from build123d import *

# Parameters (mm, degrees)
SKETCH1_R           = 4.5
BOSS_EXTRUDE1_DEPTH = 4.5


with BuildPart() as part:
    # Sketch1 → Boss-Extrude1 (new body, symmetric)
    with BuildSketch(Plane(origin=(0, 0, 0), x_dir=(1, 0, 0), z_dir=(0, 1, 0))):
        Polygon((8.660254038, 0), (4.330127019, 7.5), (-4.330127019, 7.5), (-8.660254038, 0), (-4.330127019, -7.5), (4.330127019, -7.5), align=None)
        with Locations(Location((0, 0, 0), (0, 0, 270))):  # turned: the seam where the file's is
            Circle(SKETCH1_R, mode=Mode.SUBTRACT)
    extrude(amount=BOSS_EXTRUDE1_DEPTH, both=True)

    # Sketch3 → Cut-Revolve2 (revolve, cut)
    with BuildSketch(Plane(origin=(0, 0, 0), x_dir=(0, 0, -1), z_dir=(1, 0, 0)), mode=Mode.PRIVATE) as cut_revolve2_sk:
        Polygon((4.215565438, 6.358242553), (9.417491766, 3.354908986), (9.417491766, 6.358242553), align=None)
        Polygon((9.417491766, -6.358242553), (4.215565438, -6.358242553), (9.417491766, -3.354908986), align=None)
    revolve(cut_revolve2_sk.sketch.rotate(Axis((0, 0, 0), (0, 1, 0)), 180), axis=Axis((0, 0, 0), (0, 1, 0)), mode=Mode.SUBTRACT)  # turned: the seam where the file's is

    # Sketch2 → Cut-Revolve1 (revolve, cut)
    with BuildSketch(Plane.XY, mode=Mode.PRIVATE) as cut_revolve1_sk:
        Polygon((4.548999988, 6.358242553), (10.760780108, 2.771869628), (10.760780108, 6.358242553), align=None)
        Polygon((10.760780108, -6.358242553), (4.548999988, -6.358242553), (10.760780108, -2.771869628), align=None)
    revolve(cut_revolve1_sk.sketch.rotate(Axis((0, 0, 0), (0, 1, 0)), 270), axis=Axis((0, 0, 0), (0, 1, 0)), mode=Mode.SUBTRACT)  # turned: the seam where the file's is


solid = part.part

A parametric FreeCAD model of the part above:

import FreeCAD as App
import Part
import Sketcher
from FreeCAD import Vector
Q = App.Units.Quantity


def add_polygon(sketch, points):
    """Adds a closed chain of lines whose ends are joined by coincident constraints."""
    first, n = sketch.GeometryCount, len(points)
    for a, b in zip(points, points[1:] + points[:1]):
        sketch.addGeometry(Part.LineSegment(App.Vector(*a, 0), App.Vector(*b, 0)), False)
    for i in range(n):
        sketch.addConstraint(Sketcher.Constraint("Coincident", first + i, 2, first + (i + 1) % n, 1))

doc = App.newDocument("Part")
params = doc.addObject("Spreadsheet::Sheet", "Params")
for row, (alias, value) in enumerate([
    ("sketch1_diameter", "9 mm"),
    ("pad1_length", "9 mm"),
    ("groove_angle", "360 deg"),
    ("groove2_angle", "360 deg"),
], start=1):
    params.set(f"A{row}", alias)
    params.set(f"B{row}", "=" + value)
    params.setAlias(f"B{row}", alias)

body = doc.addObject("PartDesign::Body", "Body")

# Sketch on XZ plane
sketch1 = body.newObject("Sketcher::SketchObject", "Sketch")
sketch1.AttachmentSupport = (doc.getObject("XZ_Plane"), [""])
sketch1.MapMode = "FlatFace"
add_polygon(sketch1, [(8.7, 0), (4.3, -7.5), (-4.3, -7.5), (-8.7, 0), (-4.3, 7.5), (4.3, 7.5)])  # lines 0-5
sketch1.addGeometry(Part.Circle(Vector(0, 0, 0), Vector(0, 0, 1), 4.5), False)  # 6
sketch1.addConstraint([
    Sketcher.Constraint("Horizontal", 1),
    Sketcher.Constraint("Horizontal", 4),
    Sketcher.Constraint("Coincident", 6, 3, -1, 1),
    Sketcher.Constraint("Symmetric", 0, 2, 3, 2, -1, 1),
    Sketcher.Constraint("Symmetric", 2, 2, 5, 2, -1, 1),
    Sketcher.Constraint("PointOnObject", 2, 2, -1),
    Sketcher.Constraint("Parallel", 2, 5),
    Sketcher.Constraint("Vertical", 1, 2, 3, 2),
    Sketcher.Constraint("Diameter", 6, 9.0),
    Sketcher.Constraint("Angle", 0, Q("-120 deg")),
    Sketcher.Constraint("DistanceY", 1, 2, 3, 2, 15.0),
    Sketcher.Constraint("DistanceX", 1, 2, 1, 1, 8.660254),
])
sketch1.setExpression("Constraints[14]", "Params.sketch1_diameter")
pad1 = body.newObject("PartDesign::Pad", "Pad")
pad1.Profile = sketch1
pad1.setExpression("Length", "Params.pad1_length")
pad1.Midplane = True

# Sketch on YZ plane
sketch2 = body.newObject("Sketcher::SketchObject", "Sketch001")
sketch2.AttachmentSupport = (doc.getObject("YZ_Plane"), [""])
sketch2.MapMode = "FlatFace"
add_polygon(sketch2, [(6.4, -4.2), (3.4, -9.4), (6.4, -9.4)])  # lines 0-2
add_polygon(sketch2, [(-6.4, -4.2), (-6.4, -9.4), (-3.4, -9.4)])  # lines 3-5
sketch2.addConstraint([
    Sketcher.Constraint("Horizontal", 1),
    Sketcher.Constraint("Vertical", 2),
    Sketcher.Constraint("Vertical", 3),
    Sketcher.Constraint("Horizontal", 4),
    Sketcher.Constraint("Symmetric", 1, 2, 3, 2, -2),
    Sketcher.Constraint("Horizontal", 2, 2, 5, 2),
    Sketcher.Constraint("Equal", 1, 4),
    Sketcher.Constraint("Angle", 0, Q("-120 deg")),
    Sketcher.Constraint("DistanceX", 1, 1, 1, 2, 3.003334),
    Sketcher.Constraint("DistanceX", -1, 1, 0, 2, 3.354909),
    Sketcher.Constraint("DistanceY", 0, 2, -1, 1, 9.417492),
])
groove = body.newObject("PartDesign::Groove", "Groove")
groove.Profile = sketch2
groove.ReferenceAxis = (sketch2, ["H_Axis"])
groove.setExpression("Angle", "Params.groove_angle")

# Sketch on XY plane
sketch3 = body.newObject("Sketcher::SketchObject", "Sketch002")
sketch3.AttachmentSupport = (doc.getObject("XY_Plane"), [""])
sketch3.MapMode = "FlatFace"
add_polygon(sketch3, [(4.5, 6.4), (10.8, 2.8), (10.8, 6.4)])  # lines 0-2
add_polygon(sketch3, [(4.5, -6.4), (10.8, -6.4), (10.8, -2.8)])  # lines 3-5
sketch3.addConstraint([
    Sketcher.Constraint("Vertical", 1),
    Sketcher.Constraint("Horizontal", 2),
    Sketcher.Constraint("Horizontal", 3),
    Sketcher.Constraint("Vertical", 4),
    Sketcher.Constraint("Symmetric", 1, 2, 3, 2, -1),
    Sketcher.Constraint("Vertical", 2, 2, 5, 2),
    Sketcher.Constraint("Equal", 1, 4),
    Sketcher.Constraint("Angle", 0, Q("-30 deg")),
    Sketcher.Constraint("DistanceX", -1, 1, 2, 2, 4.549),
    Sketcher.Constraint("DistanceX", 2, 2, 2, 1, 6.21178),
    Sketcher.Constraint("DistanceY", -1, 1, 0, 2, 2.77187),
])
groove2 = body.newObject("PartDesign::Groove", "Groove001")
groove2.Profile = sketch3
groove2.ReferenceAxis = (sketch3, ["V_Axis"])
groove2.setExpression("Angle", "Params.groove2_angle")

doc.recompute()
